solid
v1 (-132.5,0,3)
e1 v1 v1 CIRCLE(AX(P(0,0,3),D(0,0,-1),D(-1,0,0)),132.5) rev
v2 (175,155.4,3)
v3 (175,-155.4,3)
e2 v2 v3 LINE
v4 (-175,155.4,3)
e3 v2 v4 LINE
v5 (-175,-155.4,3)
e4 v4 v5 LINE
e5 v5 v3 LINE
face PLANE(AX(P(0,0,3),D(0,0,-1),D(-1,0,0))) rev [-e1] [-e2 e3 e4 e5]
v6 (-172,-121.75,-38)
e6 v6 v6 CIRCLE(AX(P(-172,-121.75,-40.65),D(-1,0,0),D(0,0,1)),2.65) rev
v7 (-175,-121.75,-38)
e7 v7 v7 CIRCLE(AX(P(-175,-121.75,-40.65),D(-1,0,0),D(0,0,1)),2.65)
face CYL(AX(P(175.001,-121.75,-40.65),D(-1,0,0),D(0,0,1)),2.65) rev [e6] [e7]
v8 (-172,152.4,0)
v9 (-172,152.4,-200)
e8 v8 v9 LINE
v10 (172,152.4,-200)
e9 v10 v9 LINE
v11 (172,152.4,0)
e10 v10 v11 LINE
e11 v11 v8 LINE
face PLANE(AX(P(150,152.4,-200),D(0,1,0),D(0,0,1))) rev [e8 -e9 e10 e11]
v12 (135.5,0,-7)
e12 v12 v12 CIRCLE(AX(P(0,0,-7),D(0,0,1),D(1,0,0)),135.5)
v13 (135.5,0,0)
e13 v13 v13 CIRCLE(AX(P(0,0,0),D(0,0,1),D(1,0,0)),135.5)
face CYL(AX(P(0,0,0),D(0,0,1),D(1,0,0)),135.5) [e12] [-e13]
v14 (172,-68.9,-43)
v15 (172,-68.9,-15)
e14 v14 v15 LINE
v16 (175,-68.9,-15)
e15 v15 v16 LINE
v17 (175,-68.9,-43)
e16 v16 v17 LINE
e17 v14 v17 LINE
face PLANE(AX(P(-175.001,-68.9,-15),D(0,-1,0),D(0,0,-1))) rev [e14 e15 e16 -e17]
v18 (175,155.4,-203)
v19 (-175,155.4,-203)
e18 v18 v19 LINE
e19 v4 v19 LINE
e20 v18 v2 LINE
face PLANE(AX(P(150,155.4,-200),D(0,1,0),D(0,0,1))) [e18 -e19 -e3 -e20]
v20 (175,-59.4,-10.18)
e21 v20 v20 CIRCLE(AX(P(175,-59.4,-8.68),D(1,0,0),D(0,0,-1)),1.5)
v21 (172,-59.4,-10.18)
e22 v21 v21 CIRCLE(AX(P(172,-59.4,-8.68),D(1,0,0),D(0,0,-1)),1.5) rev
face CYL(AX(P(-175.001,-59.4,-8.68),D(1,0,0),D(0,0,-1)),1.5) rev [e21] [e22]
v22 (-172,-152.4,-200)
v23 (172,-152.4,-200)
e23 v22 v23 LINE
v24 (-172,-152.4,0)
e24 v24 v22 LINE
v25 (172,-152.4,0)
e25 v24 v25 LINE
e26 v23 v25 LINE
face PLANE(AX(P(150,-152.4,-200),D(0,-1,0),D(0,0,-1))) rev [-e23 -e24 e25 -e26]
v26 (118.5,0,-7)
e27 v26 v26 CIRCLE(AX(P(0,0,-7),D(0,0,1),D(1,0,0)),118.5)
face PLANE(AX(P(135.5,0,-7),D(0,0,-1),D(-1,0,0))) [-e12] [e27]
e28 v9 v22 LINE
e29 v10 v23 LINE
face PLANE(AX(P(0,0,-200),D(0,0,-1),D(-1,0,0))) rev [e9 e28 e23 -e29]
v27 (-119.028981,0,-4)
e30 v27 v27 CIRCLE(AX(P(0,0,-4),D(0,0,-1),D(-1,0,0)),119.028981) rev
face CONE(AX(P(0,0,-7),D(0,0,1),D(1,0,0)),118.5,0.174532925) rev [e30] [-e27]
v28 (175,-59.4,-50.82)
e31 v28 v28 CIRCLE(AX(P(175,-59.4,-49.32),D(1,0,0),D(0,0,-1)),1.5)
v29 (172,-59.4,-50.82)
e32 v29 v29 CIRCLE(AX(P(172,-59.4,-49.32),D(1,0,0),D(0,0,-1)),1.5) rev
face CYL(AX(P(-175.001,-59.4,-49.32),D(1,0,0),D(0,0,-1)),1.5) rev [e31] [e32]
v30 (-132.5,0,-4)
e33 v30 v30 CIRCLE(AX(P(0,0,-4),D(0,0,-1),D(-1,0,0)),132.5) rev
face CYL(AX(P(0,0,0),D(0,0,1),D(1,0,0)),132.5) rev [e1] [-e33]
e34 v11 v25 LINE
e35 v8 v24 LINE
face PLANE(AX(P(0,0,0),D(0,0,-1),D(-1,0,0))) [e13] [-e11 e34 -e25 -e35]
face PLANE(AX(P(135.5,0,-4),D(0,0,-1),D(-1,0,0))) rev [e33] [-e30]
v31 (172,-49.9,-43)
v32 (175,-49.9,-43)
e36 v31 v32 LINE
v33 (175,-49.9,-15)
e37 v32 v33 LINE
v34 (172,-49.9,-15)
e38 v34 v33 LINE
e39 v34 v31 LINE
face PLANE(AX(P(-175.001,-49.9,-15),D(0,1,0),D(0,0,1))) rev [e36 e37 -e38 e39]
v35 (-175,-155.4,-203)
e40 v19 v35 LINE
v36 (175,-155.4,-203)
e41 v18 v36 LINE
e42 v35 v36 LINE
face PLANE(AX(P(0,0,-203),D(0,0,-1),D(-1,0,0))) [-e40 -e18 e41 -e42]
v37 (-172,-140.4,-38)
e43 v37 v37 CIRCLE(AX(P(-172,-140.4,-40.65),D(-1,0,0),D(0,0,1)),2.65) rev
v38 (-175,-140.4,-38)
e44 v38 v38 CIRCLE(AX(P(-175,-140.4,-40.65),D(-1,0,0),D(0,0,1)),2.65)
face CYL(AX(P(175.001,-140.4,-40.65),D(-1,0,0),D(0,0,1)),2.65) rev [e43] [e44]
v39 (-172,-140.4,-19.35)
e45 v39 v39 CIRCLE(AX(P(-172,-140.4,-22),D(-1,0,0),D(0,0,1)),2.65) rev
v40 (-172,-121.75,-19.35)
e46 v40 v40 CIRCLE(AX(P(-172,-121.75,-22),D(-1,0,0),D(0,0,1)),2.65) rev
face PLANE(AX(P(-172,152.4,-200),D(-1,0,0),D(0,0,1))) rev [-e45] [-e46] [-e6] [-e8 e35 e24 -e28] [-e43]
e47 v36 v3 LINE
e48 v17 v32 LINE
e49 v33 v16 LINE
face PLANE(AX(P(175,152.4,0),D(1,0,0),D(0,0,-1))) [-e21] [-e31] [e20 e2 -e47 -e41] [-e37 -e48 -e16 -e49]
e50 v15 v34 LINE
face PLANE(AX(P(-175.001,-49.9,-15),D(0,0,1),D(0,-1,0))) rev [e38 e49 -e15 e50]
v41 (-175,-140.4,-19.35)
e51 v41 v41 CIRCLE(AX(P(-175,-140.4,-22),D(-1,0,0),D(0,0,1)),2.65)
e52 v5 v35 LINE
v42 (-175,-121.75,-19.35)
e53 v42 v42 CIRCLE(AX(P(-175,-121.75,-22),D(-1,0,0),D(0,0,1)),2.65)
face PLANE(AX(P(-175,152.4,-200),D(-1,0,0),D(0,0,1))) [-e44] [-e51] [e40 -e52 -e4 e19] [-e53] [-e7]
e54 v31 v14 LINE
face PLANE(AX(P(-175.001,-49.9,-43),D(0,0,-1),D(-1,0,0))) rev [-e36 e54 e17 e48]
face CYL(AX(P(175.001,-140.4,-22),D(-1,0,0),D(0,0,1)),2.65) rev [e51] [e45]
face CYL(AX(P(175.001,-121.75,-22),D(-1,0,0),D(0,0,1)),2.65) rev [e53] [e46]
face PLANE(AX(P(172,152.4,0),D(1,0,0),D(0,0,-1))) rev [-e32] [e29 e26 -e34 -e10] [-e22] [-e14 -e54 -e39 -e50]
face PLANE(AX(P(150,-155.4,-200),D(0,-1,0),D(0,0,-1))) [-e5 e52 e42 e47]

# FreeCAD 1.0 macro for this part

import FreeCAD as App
import Part
import Sketcher

V = App.Vector
Q = App.Units.Quantity


def faces_at(feature, points):
    """Names of the faces that lie closest to the given points."""
    faces = feature.Shape.Faces
    near = lambda p: min(range(len(faces)), key=lambda i: faces[i].distToShape(Part.Vertex(*p))[0])
    return sorted({f"Face{near(p) + 1}" for p in points})

doc = App.newDocument("Part")
params = doc.addObject("Spreadsheet::Sheet", "Params")
for row, (alias, value) in enumerate([
    ("sketch1_width", "300 mm"),
    ("sketch1_height", "304.8 mm"),
    ("pad1_length", "200 mm"),
    ("sketch2_width", "344 mm"),
    ("sketch2_height", "200 mm"),
    ("sketch3_width", "17 mm"),
    ("sketch3_height", "7 mm"),
    ("sketch3_height2", "45 mm"),
    ("sketch3_width2", "135.5 mm"),
    ("groove_angle", "360 deg"),
    ("thickness_wall", "3 mm"),
    ("sketch4_diameter", "5.3 mm"),
    ("sketch5_diameter", "5.3 mm"),
    ("sketch6_diameter", "5.3 mm"),
    ("sketch7_diameter", "5.3 mm"),
    ("sketch8_diameter", "3 mm"),
    ("sketch9_diameter", "3 mm"),
    ("sketch10_width", "19 mm"),
    ("sketch10_height", "28 mm"),
], start=1):
    params.set(f"A{row}", alias)
    params.set(f"B{row}", "=" + value)
    params.setAlias(f"B{row}", alias)

body = doc.addObject("PartDesign::Body", "Body")

sketch1 = body.newObject("Sketcher::SketchObject", "Sketch")
sketch1.AttachmentSupport = (doc.getObject("XY_Plane"), [""])
sketch1.MapMode = "FlatFace"
sketch1.addGeometry([
    Part.LineSegment(V(-150, 152.4, 0), V(-150, -152.4, 0)),
    Part.LineSegment(V(-150, -152.4, 0), V(150, -152.4, 0)),
    Part.LineSegment(V(150, -152.4, 0), V(150, 152.4, 0)),
    Part.LineSegment(V(150, 152.4, 0), V(-150, 152.4, 0)),
], False)
sketch1.addConstraint([
    Sketcher.Constraint("Coincident", 0, 2, 1, 1),
    Sketcher.Constraint("Coincident", 1, 2, 2, 1),
    Sketcher.Constraint("Coincident", 2, 2, 3, 1),
    Sketcher.Constraint("Coincident", 3, 2, 0, 1),
    Sketcher.Constraint("Vertical", 0),
    Sketcher.Constraint("Horizontal", 1),
    Sketcher.Constraint("Vertical", 2),
    Sketcher.Constraint("Horizontal", 3),
    Sketcher.Constraint("Symmetric", 0, 2, 2, 2, -1, 1),
    Sketcher.Constraint("DistanceX", 1, 1, 1, 2, Q("300 mm")),
    Sketcher.Constraint("DistanceY", 0, 2, 0, 1, Q("304.8 mm")),
])
sketch1.setExpression("Constraints[9]", "Params.sketch1_width")
sketch1.setExpression("Constraints[10]", "Params.sketch1_height")
pad1 = body.newObject("PartDesign::Pad", "Pad")
pad1.Profile = sketch1
pad1.setExpression("Length", "Params.pad1_length")
pad1.Reversed = True

sketch2 = body.newObject("Sketcher::SketchObject", "Sketch001")
sketch2.AttachmentSupport = (doc.getObject("XZ_Plane"), [""])
sketch2.MapMode = "FlatFace"
sketch2.AttachmentOffset = App.Placement(V(0, 0, 152.4), App.Rotation())
sketch2.addGeometry([
    Part.LineSegment(V(-172, 0, 0), V(-172, -200, 0)),
    Part.LineSegment(V(-172, -200, 0), V(172, -200, 0)),
    Part.LineSegment(V(172, -200, 0), V(172, 0, 0)),
    Part.LineSegment(V(172, 0, 0), V(-172, 0, 0)),
], False)
sketch2.addConstraint([
    Sketcher.Constraint("Coincident", 0, 2, 1, 1),
    Sketcher.Constraint("Coincident", 1, 2, 2, 1),
    Sketcher.Constraint("Coincident", 2, 2, 3, 1),
    Sketcher.Constraint("Coincident", 3, 2, 0, 1),
    Sketcher.Constraint("Vertical", 0),
    Sketcher.Constraint("Horizontal", 1),
    Sketcher.Constraint("Vertical", 2),
    Sketcher.Constraint("Horizontal", 3),
    Sketcher.Constraint("Symmetric", 2, 2, 3, 2, -1, 1),
    Sketcher.Constraint("DistanceX", 1, 1, 1, 2, Q("344 mm")),
    Sketcher.Constraint("DistanceY", 0, 2, 0, 1, Q("200 mm")),
])
sketch2.setExpression("Constraints[9]", "Params.sketch2_width")
sketch2.setExpression("Constraints[10]", "Params.sketch2_height")
pad2 = body.newObject("PartDesign::Pad", "Pad001")
pad2.Profile = sketch2
pad2.Type = "UpToLast"
pad2.Reversed = True

sketch3 = body.newObject("Sketcher::SketchObject", "Sketch002")
sketch3.AttachmentSupport = (doc.getObject("XZ_Plane"), [""])
sketch3.MapMode = "FlatFace"
sketch3.addGeometry([
    Part.LineSegment(V(0, 0, 0), V(135.5, 0, 0)),
    Part.LineSegment(V(135.5, 0, 0), V(135.5, -7, 0)),
    Part.LineSegment(V(135.5, -7, 0), V(118.5, -7, 0)),
    Part.LineSegment(V(118.5, -7, 0), V(111.799575, -45, 0)),
    Part.LineSegment(V(111.799575, -45, 0), V(0, -45, 0)),
    Part.LineSegment(V(0, -45, 0), V(0, 0, 0)),
], False)
sketch3.addConstraint([
    Sketcher.Constraint("Coincident", 0, 2, 1, 1),
    Sketcher.Constraint("Coincident", 1, 2, 2, 1),
    Sketcher.Constraint("Coincident", 2, 2, 3, 1),
    Sketcher.Constraint("Coincident", 3, 2, 4, 1),
    Sketcher.Constraint("Coincident", 4, 2, 5, 1),
    Sketcher.Constraint("Coincident", 5, 2, 0, 1),
    Sketcher.Constraint("Horizontal", 0),
    Sketcher.Constraint("Vertical", 1),
    Sketcher.Constraint("Horizontal", 2),
    Sketcher.Constraint("Horizontal", 4),
    Sketcher.Constraint("Vertical", 5),
    Sketcher.Constraint("Coincident", 5, 2, -1, 1),
    Sketcher.Constraint("DistanceX", 2, 2, 2, 1, Q("17 mm")),
    Sketcher.Constraint("DistanceY", 1, 2, 1, 1, Q("7 mm")),
    Sketcher.Constraint("DistanceY", 5, 1, 5, 2, Q("45 mm")),
    Sketcher.Constraint("Angle", 3, Q("-100 deg")),
    Sketcher.Constraint("DistanceX", 0, 1, 0, 2, Q("135.5 mm")),
])
sketch3.setExpression("Constraints[12]", "Params.sketch3_width")
sketch3.setExpression("Constraints[13]", "Params.sketch3_height")
sketch3.setExpression("Constraints[14]", "Params.sketch3_height2")
sketch3.setExpression("Constraints[16]", "Params.sketch3_width2")
groove = body.newObject("PartDesign::Groove", "Groove")
groove.Profile = sketch3
groove.ReferenceAxis = (sketch3, ["V_Axis"])
groove.setExpression("Angle", "Params.groove_angle")
doc.recompute()

thickness = body.newObject("PartDesign::Thickness", "Thickness")
thickness.Base = (groove, faces_at(groove, [(-115.15, 0, -26), (0, 0, -45)]))
thickness.setExpression("Value", "Params.thickness_wall")
thickness.Reversed = False
thickness.Join = "Intersection"

sketch4 = body.newObject("Sketcher::SketchObject", "Sketch003")
sketch4.AttachmentSupport = (doc.getObject("YZ_Plane"), [""])
sketch4.MapMode = "FlatFace"
sketch4.AttachmentOffset = App.Placement(V(0, 0, -175), App.Rotation())
sketch4.addGeometry(Part.Circle(V(-121.75, -40.65, 0), V(0, 0, 1), 2.65), False)
sketch4.addConstraint([
    Sketcher.Constraint("Diameter", 0, Q("5.3 mm")),
    Sketcher.Constraint("DistanceX", 0, 3, -1, 1, Q("121.75 mm")),
    Sketcher.Constraint("DistanceY", 0, 3, -1, 1, Q("40.65 mm")),
])
sketch4.setExpression("Constraints[0]", "Params.sketch4_diameter")
pocket1 = body.newObject("PartDesign::Pocket", "Pocket")
pocket1.Profile = sketch4
pocket1.Type = "UpToFirst"
pocket1.Reversed = True

sketch5 = body.newObject("Sketcher::SketchObject", "Sketch004")
sketch5.AttachmentSupport = (doc.getObject("YZ_Plane"), [""])
sketch5.MapMode = "FlatFace"
sketch5.AttachmentOffset = App.Placement(V(0, 0, -175), App.Rotation())
sketch5.addGeometry(Part.Circle(V(-121.75, -22, 0), V(0, 0, 1), 2.65), False)
sketch5.addConstraint([
    Sketcher.Constraint("Diameter", 0, Q("5.3 mm")),
    Sketcher.Constraint("DistanceY", 0, 3, -1, 1, Q("22 mm")),
    Sketcher.Constraint("DistanceX", 0, 3, -1, 1, Q("121.75 mm")),
])
sketch5.setExpression("Constraints[0]", "Params.sketch5_diameter")
pocket2 = body.newObject("PartDesign::Pocket", "Pocket001")
pocket2.Profile = sketch5
pocket2.Type = "UpToFirst"
pocket2.Reversed = True

sketch6 = body.newObject("Sketcher::SketchObject", "Sketch005")
sketch6.AttachmentSupport = (doc.getObject("YZ_Plane"), [""])
sketch6.MapMode = "FlatFace"
sketch6.AttachmentOffset = App.Placement(V(0, 0, -175), App.Rotation())
sketch6.addGeometry(Part.Circle(V(-140.4, -22, 0), V(0, 0, 1), 2.65), False)
sketch6.addConstraint([
    Sketcher.Constraint("Diameter", 0, Q("5.3 mm")),
    Sketcher.Constraint("DistanceY", 0, 3, -1, 1, Q("22 mm")),
    Sketcher.Constraint("DistanceX", 0, 3, -1, 1, Q("140.4 mm")),
])
sketch6.setExpression("Constraints[0]", "Params.sketch6_diameter")
pocket3 = body.newObject("PartDesign::Pocket", "Pocket002")
pocket3.Profile = sketch6
pocket3.Type = "UpToFirst"
pocket3.Reversed = True

sketch7 = body.newObject("Sketcher::SketchObject", "Sketch006")
sketch7.AttachmentSupport = (doc.getObject("YZ_Plane"), [""])
sketch7.MapMode = "FlatFace"
sketch7.AttachmentOffset = App.Placement(V(0, 0, -175), App.Rotation())
sketch7.addGeometry(Part.Circle(V(-140.4, -40.65, 0), V(0, 0, 1), 2.65), False)
sketch7.addConstraint([
    Sketcher.Constraint("Diameter", 0, Q("5.3 mm")),
    Sketcher.Constraint("DistanceX", 0, 3, -1, 1, Q("140.4 mm")),
    Sketcher.Constraint("DistanceY", 0, 3, -1, 1, Q("40.65 mm")),
])
sketch7.setExpression("Constraints[0]", "Params.sketch7_diameter")
pocket4 = body.newObject("PartDesign::Pocket", "Pocket003")
pocket4.Profile = sketch7
pocket4.Type = "UpToFirst"
pocket4.Reversed = True

sketch8 = body.newObject("Sketcher::SketchObject", "Sketch007")
sketch8.AttachmentSupport = (doc.getObject("YZ_Plane"), [""])
sketch8.MapMode = "FlatFace"
sketch8.AttachmentOffset = App.Placement(V(0, 0, 175), App.Rotation())
sketch8.addGeometry(Part.Circle(V(-59.4, -8.68, 0), V(0, 0, 1), 1.5), False)
sketch8.addConstraint([
    Sketcher.Constraint("Diameter", 0, Q("3 mm")),
    Sketcher.Constraint("DistanceX", 0, 3, -1, 1, Q("59.4 mm")),
    Sketcher.Constraint("DistanceY", 0, 3, -1, 1, Q("8.68 mm")),
])
sketch8.setExpression("Constraints[0]", "Params.sketch8_diameter")
pocket5 = body.newObject("PartDesign::Pocket", "Pocket004")
pocket5.Profile = sketch8
pocket5.Type = "UpToFirst"

sketch9 = body.newObject("Sketcher::SketchObject", "Sketch008")
sketch9.AttachmentSupport = (doc.getObject("YZ_Plane"), [""])
sketch9.MapMode = "FlatFace"
sketch9.AttachmentOffset = App.Placement(V(0, 0, 175), App.Rotation())
sketch9.addGeometry(Part.Circle(V(-59.4, -49.32, 0), V(0, 0, 1), 1.5), False)
sketch9.addConstraint([
    Sketcher.Constraint("Diameter", 0, Q("3 mm")),
    Sketcher.Constraint("DistanceX", 0, 3, -1, 1, Q("59.4 mm")),
    Sketcher.Constraint("DistanceY", 0, 3, -1, 1, Q("49.32 mm")),
])
sketch9.setExpression("Constraints[0]", "Params.sketch9_diameter")
pocket6 = body.newObject("PartDesign::Pocket", "Pocket005")
pocket6.Profile = sketch9
pocket6.Type = "UpToFirst"

sketch10 = body.newObject("Sketcher::SketchObject", "Sketch009")
sketch10.AttachmentSupport = (doc.getObject("YZ_Plane"), [""])
sketch10.MapMode = "FlatFace"
sketch10.AttachmentOffset = App.Placement(V(0, 0, 175), App.Rotation())
sketch10.addGeometry([
    Part.LineSegment(V(-49.9, -15, 0), V(-68.9, -15, 0)),
    Part.LineSegment(V(-68.9, -15, 0), V(-68.9, -43, 0)),
    Part.LineSegment(V(-68.9, -43, 0), V(-49.9, -43, 0)),
    Part.LineSegment(V(-49.9, -43, 0), V(-49.9, -15, 0)),
], False)
sketch10.addConstraint([
    Sketcher.Constraint("Coincident", 0, 2, 1, 1),
    Sketcher.Constraint("Coincident", 1, 2, 2, 1),
    Sketcher.Constraint("Coincident", 2, 2, 3, 1),
    Sketcher.Constraint("Coincident", 3, 2, 0, 1),
    Sketcher.Constraint("Horizontal", 0),
    Sketcher.Constraint("Vertical", 1),
    Sketcher.Constraint("Horizontal", 2),
    Sketcher.Constraint("Vertical", 3),
    Sketcher.Constraint("DistanceX", 0, 2, 0, 1, Q("19 mm")),
    Sketcher.Constraint("DistanceY", 1, 2, 1, 1, Q("28 mm")),
    Sketcher.Constraint("DistanceY", 0, 2, -1, 1, Q("15 mm")),
    Sketcher.Constraint("DistanceX", 0, 2, -1, 1, Q("68.9 mm")),
])
sketch10.setExpression("Constraints[8]", "Params.sketch10_width")
sketch10.setExpression("Constraints[9]", "Params.sketch10_height")
pocket7 = body.newObject("PartDesign::Pocket", "Pocket006")
pocket7.Profile = sketch10
pocket7.Type = "UpToFirst"

doc.recompute()
